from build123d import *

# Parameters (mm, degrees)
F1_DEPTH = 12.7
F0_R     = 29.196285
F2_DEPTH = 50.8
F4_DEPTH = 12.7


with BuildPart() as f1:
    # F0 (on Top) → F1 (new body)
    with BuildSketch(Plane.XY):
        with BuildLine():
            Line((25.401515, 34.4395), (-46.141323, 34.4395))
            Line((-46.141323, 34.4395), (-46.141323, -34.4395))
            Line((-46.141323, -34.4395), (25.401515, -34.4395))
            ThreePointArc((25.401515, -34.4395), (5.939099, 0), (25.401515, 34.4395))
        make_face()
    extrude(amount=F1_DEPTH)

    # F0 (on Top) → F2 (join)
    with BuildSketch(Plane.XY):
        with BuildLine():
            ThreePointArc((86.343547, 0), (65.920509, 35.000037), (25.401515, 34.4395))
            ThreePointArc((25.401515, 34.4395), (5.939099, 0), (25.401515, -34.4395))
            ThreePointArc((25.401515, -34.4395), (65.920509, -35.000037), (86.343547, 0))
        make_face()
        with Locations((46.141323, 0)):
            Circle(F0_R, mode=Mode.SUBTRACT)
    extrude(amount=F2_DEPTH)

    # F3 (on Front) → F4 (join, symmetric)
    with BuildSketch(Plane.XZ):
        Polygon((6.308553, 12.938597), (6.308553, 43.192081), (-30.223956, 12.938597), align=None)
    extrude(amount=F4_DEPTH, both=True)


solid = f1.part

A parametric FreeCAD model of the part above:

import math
import FreeCAD as App
import Part
import Sketcher
Q = App.Units.Quantity


def add_polygon(sketch, points):
    """Adds a closed chain of lines whose ends are joined by coincident constraints."""
    first, n = sketch.GeometryCount, len(points)
    for a, b in zip(points, points[1:] + points[:1]):
        sketch.addGeometry(Part.LineSegment(App.Vector(*a, 0), App.Vector(*b, 0)), False)
    for i in range(n):
        sketch.addConstraint(Sketcher.Constraint("Coincident", first + i, 2, first + (i + 1) % n, 1))

doc = App.newDocument("Part")
body = doc.addObject("PartDesign::Body", "Body")

sketch1 = body.newObject("Sketcher::SketchObject", "Sketch")
sketch1.AttachmentSupport = (doc.getObject("XY_Plane"), [""])
sketch1.MapMode = "FlatFace"
sketch1.addGeometry(Part.LineSegment(App.Vector(25, 34, 0), App.Vector(-46, 34, 0)), False)
sketch1.addGeometry(Part.LineSegment(App.Vector(-46, 34, 0), App.Vector(-46, -34, 0)), False)
sketch1.addGeometry(Part.LineSegment(App.Vector(-46, -34, 0), App.Vector(25, -34, 0)), False)
sketch1.addGeometry(Part.ArcOfCircle(Part.Circle(App.Vector(46, 0, 0), App.Vector(0, 0, 1), 40), math.radians(121), math.radians(239)), False)
sketch1.addConstraint(Sketcher.Constraint("Coincident", 0, 2, 1, 1))
sketch1.addConstraint(Sketcher.Constraint("Coincident", 1, 2, 2, 1))
sketch1.addConstraint(Sketcher.Constraint("Coincident", 2, 2, 3, 2))
sketch1.addConstraint(Sketcher.Constraint("Coincident", 3, 1, 0, 1))
sketch1.addConstraint(Sketcher.Constraint("Horizontal", 0))
sketch1.addConstraint(Sketcher.Constraint("Vertical", 1))
sketch1.addConstraint(Sketcher.Constraint("Horizontal", 2))
sketch1.addConstraint(Sketcher.Constraint("Symmetric", 2, 2, 3, 1, -1))
sketch1.addConstraint(Sketcher.Constraint("DistanceY", 1, 2, 1, 1, Q("68.879 mm")))
sketch1.addConstraint(Sketcher.Constraint("Radius", 3, Q("40.202224 mm")))
sketch1.addConstraint(Sketcher.Constraint("DistanceX", 0, 2, 0, 1, Q("71.542838 mm")))
sketch1.addConstraint(Sketcher.Constraint("DistanceX", -1, 1, 3, 3, Q("46.141323 mm")))
pad1 = body.newObject("PartDesign::Pad", "Pad")
pad1.Profile = sketch1
pad1.Length = Q("0.5 in")

sketch2 = body.newObject("Sketcher::SketchObject", "Sketch001")
sketch2.AttachmentSupport = (doc.getObject("XY_Plane"), [""])
sketch2.MapMode = "FlatFace"
sketch2.addGeometry(Part.ArcOfCircle(Part.Circle(App.Vector(46, 0, 0), App.Vector(0, 0, 1), 40), math.radians(0), math.radians(121)), False)
sketch2.addGeometry(Part.ArcOfCircle(Part.Circle(App.Vector(46, 0, 0), App.Vector(0, 0, 1), 40), math.radians(121), math.radians(239)), False)
sketch2.addGeometry(Part.ArcOfCircle(Part.Circle(App.Vector(46, 0, 0), App.Vector(0, 0, 1), 40), math.radians(-121), math.radians(0)), False)
sketch2.addGeometry(Part.Circle(App.Vector(46, 0, 0), App.Vector(0, 0, 1), 29), False)
sketch2.addConstraint(Sketcher.Constraint("Tangent", 0, 2, 1, 1))
sketch2.addConstraint(Sketcher.Constraint("Tangent", 1, 2, 2, 1))
sketch2.addConstraint(Sketcher.Constraint("Tangent", 2, 2, 0, 1))
sketch2.addConstraint(Sketcher.Constraint("Coincident", 3, 3, 0, 3))
sketch2.addConstraint(Sketcher.Constraint("Symmetric", 0, 2, 1, 2, -1))
sketch2.addConstraint(Sketcher.Constraint("PointOnObject", 2, 2, -1))
sketch2.addConstraint(Sketcher.Constraint("Diameter", 3, Q("58.39257 mm")))
sketch2.addConstraint(Sketcher.Constraint("Radius", 0, Q("40.202224 mm")))
sketch2.addConstraint(Sketcher.Constraint("DistanceY", -1, 1, 0, 2, Q("34.4395 mm")))
sketch2.addConstraint(Sketcher.Constraint("DistanceX", -1, 1, 0, 3, Q("46.141323 mm")))
pad2 = body.newObject("PartDesign::Pad", "Pad001")
pad2.Profile = sketch2
pad2.Length = Q("2 in")

sketch3 = body.newObject("Sketcher::SketchObject", "Sketch002")
sketch3.AttachmentSupport = (doc.getObject("XZ_Plane"), [""])
sketch3.MapMode = "FlatFace"
add_polygon(sketch3, [(6, 13), (6, 43), (-30, 13)])
sketch3.addConstraint(Sketcher.Constraint("Vertical", 0))
sketch3.addConstraint(Sketcher.Constraint("Horizontal", 2))
sketch3.addConstraint(Sketcher.Constraint("DistanceX", 2, 1, 2, 2, Q("36.532509 mm")))
sketch3.addConstraint(Sketcher.Constraint("DistanceY", 0, 1, 0, 2, Q("30.253484 mm")))
sketch3.addConstraint(Sketcher.Constraint("DistanceY", -1, 1, 0, 2, Q("43.192081 mm")))
sketch3.addConstraint(Sketcher.Constraint("DistanceX", -1, 1, 0, 2, Q("6.308553 mm")))
pad3 = body.newObject("PartDesign::Pad", "Pad002")
pad3.Profile = sketch3
pad3.Length = Q("1 in")
pad3.Midplane = True

doc.recompute()
